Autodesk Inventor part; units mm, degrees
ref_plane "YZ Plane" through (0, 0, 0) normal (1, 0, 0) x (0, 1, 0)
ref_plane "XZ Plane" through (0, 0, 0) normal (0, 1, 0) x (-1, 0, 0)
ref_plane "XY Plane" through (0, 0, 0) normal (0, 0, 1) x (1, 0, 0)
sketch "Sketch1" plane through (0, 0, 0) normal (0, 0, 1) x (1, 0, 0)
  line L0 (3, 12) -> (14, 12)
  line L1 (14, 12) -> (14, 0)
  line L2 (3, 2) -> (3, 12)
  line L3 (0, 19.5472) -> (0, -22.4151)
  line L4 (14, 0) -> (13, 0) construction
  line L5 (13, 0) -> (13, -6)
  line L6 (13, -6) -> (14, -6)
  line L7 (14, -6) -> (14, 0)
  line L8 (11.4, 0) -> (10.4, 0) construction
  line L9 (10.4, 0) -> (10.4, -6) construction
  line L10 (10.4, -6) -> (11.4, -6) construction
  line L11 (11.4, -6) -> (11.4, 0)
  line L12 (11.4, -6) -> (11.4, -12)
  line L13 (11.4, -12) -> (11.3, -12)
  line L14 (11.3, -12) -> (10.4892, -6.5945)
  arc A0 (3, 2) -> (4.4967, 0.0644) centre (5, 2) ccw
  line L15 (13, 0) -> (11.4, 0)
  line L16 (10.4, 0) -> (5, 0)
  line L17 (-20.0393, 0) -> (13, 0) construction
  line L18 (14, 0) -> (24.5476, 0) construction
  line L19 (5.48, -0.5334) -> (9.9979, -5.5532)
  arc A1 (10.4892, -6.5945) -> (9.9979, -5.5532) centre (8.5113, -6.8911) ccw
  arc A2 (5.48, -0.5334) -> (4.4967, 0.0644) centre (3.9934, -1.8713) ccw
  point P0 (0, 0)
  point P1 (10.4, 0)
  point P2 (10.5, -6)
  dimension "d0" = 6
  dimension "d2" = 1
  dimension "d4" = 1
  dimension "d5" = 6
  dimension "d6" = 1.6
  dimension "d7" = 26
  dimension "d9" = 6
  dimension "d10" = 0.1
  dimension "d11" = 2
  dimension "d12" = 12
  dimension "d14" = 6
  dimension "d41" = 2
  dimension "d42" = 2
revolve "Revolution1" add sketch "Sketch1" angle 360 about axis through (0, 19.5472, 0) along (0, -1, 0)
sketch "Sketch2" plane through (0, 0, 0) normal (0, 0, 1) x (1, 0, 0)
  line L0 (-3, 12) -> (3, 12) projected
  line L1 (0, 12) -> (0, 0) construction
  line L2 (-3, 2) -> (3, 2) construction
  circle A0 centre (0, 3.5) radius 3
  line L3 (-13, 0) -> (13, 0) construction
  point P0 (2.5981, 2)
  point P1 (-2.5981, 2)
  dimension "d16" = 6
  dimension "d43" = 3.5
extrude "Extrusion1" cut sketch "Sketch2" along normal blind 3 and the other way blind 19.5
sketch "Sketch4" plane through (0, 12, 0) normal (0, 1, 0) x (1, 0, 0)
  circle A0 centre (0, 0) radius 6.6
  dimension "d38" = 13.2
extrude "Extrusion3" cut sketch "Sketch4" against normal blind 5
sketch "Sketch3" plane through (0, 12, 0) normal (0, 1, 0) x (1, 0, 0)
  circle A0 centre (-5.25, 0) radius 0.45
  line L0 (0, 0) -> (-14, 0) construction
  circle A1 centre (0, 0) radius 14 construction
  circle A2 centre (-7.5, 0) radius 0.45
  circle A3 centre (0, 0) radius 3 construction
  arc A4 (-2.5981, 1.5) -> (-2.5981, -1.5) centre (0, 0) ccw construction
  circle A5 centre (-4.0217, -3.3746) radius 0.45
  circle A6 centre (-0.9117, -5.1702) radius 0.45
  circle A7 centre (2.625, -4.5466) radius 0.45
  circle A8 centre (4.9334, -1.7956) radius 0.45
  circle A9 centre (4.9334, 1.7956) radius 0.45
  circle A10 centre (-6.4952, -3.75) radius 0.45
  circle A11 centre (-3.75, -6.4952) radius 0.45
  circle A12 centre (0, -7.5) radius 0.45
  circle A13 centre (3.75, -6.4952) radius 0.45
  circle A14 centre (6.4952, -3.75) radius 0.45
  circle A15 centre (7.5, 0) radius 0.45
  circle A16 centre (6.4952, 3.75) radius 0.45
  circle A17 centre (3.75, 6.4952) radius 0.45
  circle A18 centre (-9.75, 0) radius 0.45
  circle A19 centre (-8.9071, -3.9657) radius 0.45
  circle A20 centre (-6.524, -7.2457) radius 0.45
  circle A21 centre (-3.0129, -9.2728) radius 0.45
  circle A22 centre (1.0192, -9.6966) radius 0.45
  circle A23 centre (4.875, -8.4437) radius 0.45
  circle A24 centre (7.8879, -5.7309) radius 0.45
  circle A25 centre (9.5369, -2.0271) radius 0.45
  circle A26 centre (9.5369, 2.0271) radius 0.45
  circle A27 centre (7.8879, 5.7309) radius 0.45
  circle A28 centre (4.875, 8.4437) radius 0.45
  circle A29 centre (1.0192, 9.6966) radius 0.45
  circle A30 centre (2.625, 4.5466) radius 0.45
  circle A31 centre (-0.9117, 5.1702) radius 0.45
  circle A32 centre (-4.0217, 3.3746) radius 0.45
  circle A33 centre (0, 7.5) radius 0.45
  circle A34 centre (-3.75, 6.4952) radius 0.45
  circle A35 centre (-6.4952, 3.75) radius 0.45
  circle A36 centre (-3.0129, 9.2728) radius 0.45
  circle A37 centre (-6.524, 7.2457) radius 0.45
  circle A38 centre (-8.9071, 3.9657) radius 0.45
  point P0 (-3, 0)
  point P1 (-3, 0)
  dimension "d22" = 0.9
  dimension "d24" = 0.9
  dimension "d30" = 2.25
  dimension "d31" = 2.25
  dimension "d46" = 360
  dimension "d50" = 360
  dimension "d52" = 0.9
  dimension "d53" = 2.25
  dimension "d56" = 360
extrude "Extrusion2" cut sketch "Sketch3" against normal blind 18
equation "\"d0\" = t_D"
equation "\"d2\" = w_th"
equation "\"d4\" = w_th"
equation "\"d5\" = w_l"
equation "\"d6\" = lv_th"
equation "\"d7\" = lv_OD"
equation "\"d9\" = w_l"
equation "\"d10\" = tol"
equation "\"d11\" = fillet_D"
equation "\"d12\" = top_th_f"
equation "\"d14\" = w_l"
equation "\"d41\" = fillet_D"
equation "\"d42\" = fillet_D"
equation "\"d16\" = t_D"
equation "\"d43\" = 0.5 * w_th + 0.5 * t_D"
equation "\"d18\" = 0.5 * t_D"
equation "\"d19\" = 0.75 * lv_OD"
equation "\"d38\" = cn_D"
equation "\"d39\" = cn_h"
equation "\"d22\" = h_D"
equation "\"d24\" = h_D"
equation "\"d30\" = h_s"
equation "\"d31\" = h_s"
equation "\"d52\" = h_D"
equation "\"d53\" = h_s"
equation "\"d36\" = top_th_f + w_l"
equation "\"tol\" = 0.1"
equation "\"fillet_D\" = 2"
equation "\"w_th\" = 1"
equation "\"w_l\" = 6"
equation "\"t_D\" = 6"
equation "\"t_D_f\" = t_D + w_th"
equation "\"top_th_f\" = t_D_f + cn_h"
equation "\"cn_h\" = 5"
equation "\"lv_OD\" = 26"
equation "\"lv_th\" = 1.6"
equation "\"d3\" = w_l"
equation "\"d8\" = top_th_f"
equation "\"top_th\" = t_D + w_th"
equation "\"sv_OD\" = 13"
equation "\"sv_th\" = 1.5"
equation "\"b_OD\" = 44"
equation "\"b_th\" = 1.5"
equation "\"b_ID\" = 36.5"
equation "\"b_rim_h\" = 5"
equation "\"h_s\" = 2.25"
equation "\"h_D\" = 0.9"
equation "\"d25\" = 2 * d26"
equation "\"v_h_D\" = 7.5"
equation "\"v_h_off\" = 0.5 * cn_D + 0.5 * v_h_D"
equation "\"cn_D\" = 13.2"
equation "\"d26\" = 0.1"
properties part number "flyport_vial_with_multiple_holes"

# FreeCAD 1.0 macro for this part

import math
import FreeCAD as App
import Part
import Sketcher
Q = App.Units.Quantity

doc = App.newDocument("Part")
body = doc.addObject("PartDesign::Body", "Body")

sketch1 = body.newObject("Sketcher::SketchObject", "Sketch")
sketch1.AttachmentSupport = (doc.getObject("XY_Plane"), [""])
sketch1.MapMode = "FlatFace"
sketch1.addGeometry([
    Part.LineSegment(App.Vector(14, 12, 0), App.Vector(3, 12, 0)),
    Part.LineSegment(App.Vector(3, 12, 0), App.Vector(3, 2, 0)),
    Part.ArcOfCircle(Part.Circle(App.Vector(5, 2, 0), App.Vector(0, 0, 1), 2), math.radians(180), math.radians(255)),
    Part.ArcOfCircle(Part.Circle(App.Vector(3.99, -1.87, 0), App.Vector(0, 0, 1), 2), math.radians(42), math.radians(75)),
    Part.LineSegment(App.Vector(5.48, -0.53, 0), App.Vector(10, -5.55, 0)),
    Part.ArcOfCircle(Part.Circle(App.Vector(8.51, -6.89, 0), App.Vector(0, 0, 1), 2), math.radians(9), math.radians(42)),
    Part.LineSegment(App.Vector(10.49, -6.59, 0), App.Vector(11.3, -12, 0)),
    Part.LineSegment(App.Vector(11.3, -12, 0), App.Vector(11.4, -12, 0)),
    Part.LineSegment(App.Vector(11.4, -12, 0), App.Vector(11.4, 0, 0)),
    Part.LineSegment(App.Vector(11.4, 0, 0), App.Vector(13, 0, 0)),
    Part.LineSegment(App.Vector(13, 0, 0), App.Vector(13, -6, 0)),
    Part.LineSegment(App.Vector(13, -6, 0), App.Vector(14, -6, 0)),
    Part.LineSegment(App.Vector(14, -6, 0), App.Vector(14, 12, 0)),
], False)
sketch1.addConstraint([
    Sketcher.Constraint("Coincident", 0, 2, 1, 1),
    Sketcher.Constraint("Tangent", 1, 2, 2, 1),
    Sketcher.Constraint("Tangent", 2, 2, 3, 2),
    Sketcher.Constraint("Tangent", 3, 1, 4, 1),
    Sketcher.Constraint("Tangent", 4, 2, 5, 2),
    Sketcher.Constraint("Tangent", 5, 1, 6, 1),
    Sketcher.Constraint("Coincident", 6, 2, 7, 1),
    Sketcher.Constraint("Coincident", 7, 2, 8, 1),
    Sketcher.Constraint("Coincident", 8, 2, 9, 1),
    Sketcher.Constraint("Coincident", 9, 2, 10, 1),
    Sketcher.Constraint("Coincident", 10, 2, 11, 1),
    Sketcher.Constraint("Coincident", 11, 2, 12, 1),
    Sketcher.Constraint("Coincident", 12, 2, 0, 1),
    Sketcher.Constraint("Horizontal", 0),
    Sketcher.Constraint("Vertical", 1),
    Sketcher.Constraint("Horizontal", 7),
    Sketcher.Constraint("Vertical", 8),
    Sketcher.Constraint("Horizontal", 9),
    Sketcher.Constraint("Vertical", 10),
    Sketcher.Constraint("Horizontal", 11),
    Sketcher.Constraint("Vertical", 12),
    Sketcher.Constraint("Equal", 2, 3),
    Sketcher.Constraint("Equal", 3, 5),
    Sketcher.Constraint("PointOnObject", 8, 2, -1),
    Sketcher.Constraint("Radius", 2, 2.0),
    Sketcher.Constraint("DistanceX", 11, 1, 11, 2, 1.0),
    Sketcher.Constraint("DistanceY", 8, 1, 8, 2, 12.0),
    Sketcher.Constraint("DistanceY", 10, 2, 10, 1, 6.0),
    Sketcher.Constraint("DistanceX", 7, 1, 7, 2, 0.1),
    Sketcher.Constraint("DistanceX", 9, 1, 9, 2, 1.6),
    Sketcher.Constraint("DistanceY", -1, 1, 2, 3, 2.0),
    Sketcher.Constraint("DistanceY", -1, 1, 0, 2, 12.0),
    Sketcher.Constraint("DistanceX", 0, 2, 0, 1, 11.0),
    Sketcher.Constraint("DistanceX", -1, 1, 2, 3, 5.0),
    Sketcher.Constraint("Angle", 6, Q("-81.4695 deg")),
    Sketcher.Constraint("DistanceX", -1, 1, 3, 1, 5.48),
    Sketcher.Constraint("Distance", 6, 5.466),
])
revolution = body.newObject("PartDesign::Revolution", "Revolution")
revolution.Profile = sketch1
revolution.ReferenceAxis = (sketch1, ["V_Axis"])
revolution.Angle = 360

sketch2 = body.newObject("Sketcher::SketchObject", "Sketch001")
sketch2.AttachmentSupport = (doc.getObject("XY_Plane"), [""])
sketch2.MapMode = "FlatFace"
sketch2.addGeometry(Part.Circle(App.Vector(0, 3.5, 0), App.Vector(0, 0, 1), 3), False)
sketch2.addConstraint([
    Sketcher.Constraint("PointOnObject", 0, 3, -2),
    Sketcher.Constraint("Diameter", 0, 6.0),
    Sketcher.Constraint("DistanceY", -1, 1, 0, 3, 3.5),
])
pocket1 = body.newObject("PartDesign::Pocket", "Pocket")
pocket1.Profile = sketch2
pocket1.Type = "TwoLengths"
pocket1.Length = 3
pocket1.Length2 = 19.5
pocket1.Reversed = True

sketch3 = body.newObject("Sketcher::SketchObject", "Sketch002")
sketch3.AttachmentSupport = (doc.getObject("XZ_Plane"), [""])
sketch3.MapMode = "FlatFace"
sketch3.AttachmentOffset = App.Placement(App.Vector(0, 0, -12), App.Rotation())
sketch3.addGeometry(Part.Circle(App.Vector(0, 0, 0), App.Vector(0, 0, 1), 7), False)
sketch3.addConstraint([
    Sketcher.Constraint("Coincident", 0, 3, -1, 1),
    Sketcher.Constraint("Diameter", 0, 13.2),
])
pocket2 = body.newObject("PartDesign::Pocket", "Pocket001")
pocket2.Profile = sketch3
pocket2.Length = 5
pocket2.Reversed = True

sketch4 = body.newObject("Sketcher::SketchObject", "Sketch003")
sketch4.AttachmentSupport = (doc.getObject("XZ_Plane"), [""])
sketch4.MapMode = "FlatFace"
sketch4.AttachmentOffset = App.Placement(App.Vector(0, 0, -12), App.Rotation())
sketch4.addGeometry([
    Part.Circle(App.Vector(-5.25, 0, 0), App.Vector(0, 0, 1), 0.45),
    Part.Circle(App.Vector(-7.5, 0, 0), App.Vector(0, 0, 1), 0.45),
    Part.Circle(App.Vector(-4.02, 3.37, 0), App.Vector(0, 0, 1), 0.45),
    Part.Circle(App.Vector(-0.91, 5.17, 0), App.Vector(0, 0, 1), 0.45),
    Part.Circle(App.Vector(2.62, 4.55, 0), App.Vector(0, 0, 1), 0.45),
    Part.Circle(App.Vector(4.93, 1.8, 0), App.Vector(0, 0, 1), 0.45),
    Part.Circle(App.Vector(4.93, -1.8, 0), App.Vector(0, 0, 1), 0.45),
    Part.Circle(App.Vector(-6.5, 3.75, 0), App.Vector(0, 0, 1), 0.45),
    Part.Circle(App.Vector(-3.75, 6.5, 0), App.Vector(0, 0, 1), 0.45),
    Part.Circle(App.Vector(0, 7.5, 0), App.Vector(0, 0, 1), 0.45),
    Part.Circle(App.Vector(3.75, 6.5, 0), App.Vector(0, 0, 1), 0.45),
    Part.Circle(App.Vector(6.5, 3.75, 0), App.Vector(0, 0, 1), 0.45),
    Part.Circle(App.Vector(7.5, 0, 0), App.Vector(0, 0, 1), 0.45),
    Part.Circle(App.Vector(6.5, -3.75, 0), App.Vector(0, 0, 1), 0.45),
    Part.Circle(App.Vector(3.75, -6.5, 0), App.Vector(0, 0, 1), 0.45),
    Part.Circle(App.Vector(-9.75, 0, 0), App.Vector(0, 0, 1), 0.45),
    Part.Circle(App.Vector(-8.91, 3.97, 0), App.Vector(0, 0, 1), 0.45),
    Part.Circle(App.Vector(-6.52, 7.25, 0), App.Vector(0, 0, 1), 0.45),
    Part.Circle(App.Vector(-3.01, 9.27, 0), App.Vector(0, 0, 1), 0.45),
    Part.Circle(App.Vector(1.02, 9.7, 0), App.Vector(0, 0, 1), 0.45),
    Part.Circle(App.Vector(4.88, 8.44, 0), App.Vector(0, 0, 1), 0.45),
    Part.Circle(App.Vector(7.89, 5.73, 0), App.Vector(0, 0, 1), 0.45),
    Part.Circle(App.Vector(9.54, 2.03, 0), App.Vector(0, 0, 1), 0.45),
    Part.Circle(App.Vector(9.54, -2.03, 0), App.Vector(0, 0, 1), 0.45),
    Part.Circle(App.Vector(7.89, -5.73, 0), App.Vector(0, 0, 1), 0.45),
    Part.Circle(App.Vector(4.88, -8.44, 0), App.Vector(0, 0, 1), 0.45),
    Part.Circle(App.Vector(1.02, -9.7, 0), App.Vector(0, 0, 1), 0.45),
    Part.Circle(App.Vector(2.62, -4.55, 0), App.Vector(0, 0, 1), 0.45),
    Part.Circle(App.Vector(-0.91, -5.17, 0), App.Vector(0, 0, 1), 0.45),
    Part.Circle(App.Vector(-4.02, -3.37, 0), App.Vector(0, 0, 1), 0.45),
    Part.Circle(App.Vector(0, -7.5, 0), App.Vector(0, 0, 1), 0.45),
    Part.Circle(App.Vector(-3.75, -6.5, 0), App.Vector(0, 0, 1), 0.45),
    Part.Circle(App.Vector(-6.5, -3.75, 0), App.Vector(0, 0, 1), 0.45),
    Part.Circle(App.Vector(-3.01, -9.27, 0), App.Vector(0, 0, 1), 0.45),
    Part.Circle(App.Vector(-6.52, -7.25, 0), App.Vector(0, 0, 1), 0.45),
    Part.Circle(App.Vector(-8.91, -3.97, 0), App.Vector(0, 0, 1), 0.45),
], False)
sketch4.addConstraint([
    Sketcher.Constraint("Equal", 0, 1),
    Sketcher.Constraint("Equal", 1, 2),
    Sketcher.Constraint("Equal", 2, 3),
    Sketcher.Constraint("Equal", 3, 4),
    Sketcher.Constraint("Equal", 4, 5),
    Sketcher.Constraint("Equal", 5, 6),
    Sketcher.Constraint("Equal", 6, 7),
    Sketcher.Constraint("Equal", 7, 8),
    Sketcher.Constraint("Equal", 8, 9),
    Sketcher.Constraint("Equal", 9, 10),
    Sketcher.Constraint("Equal", 10, 11),
    Sketcher.Constraint("Equal", 11, 12),
    Sketcher.Constraint("Equal", 12, 13),
    Sketcher.Constraint("Equal", 13, 14),
    Sketcher.Constraint("Equal", 14, 15),
    Sketcher.Constraint("Equal", 15, 16),
    Sketcher.Constraint("Equal", 16, 17),
    Sketcher.Constraint("Equal", 17, 18),
    Sketcher.Constraint("Equal", 18, 19),
    Sketcher.Constraint("Equal", 19, 20),
    Sketcher.Constraint("Equal", 20, 21),
    Sketcher.Constraint("Equal", 21, 22),
    Sketcher.Constraint("Equal", 22, 23),
    Sketcher.Constraint("Equal", 23, 24),
    Sketcher.Constraint("Equal", 24, 25),
    Sketcher.Constraint("Equal", 25, 26),
    Sketcher.Constraint("Equal", 26, 27),
    Sketcher.Constraint("Equal", 27, 28),
    Sketcher.Constraint("Equal", 28, 29),
    Sketcher.Constraint("Equal", 29, 30),
    Sketcher.Constraint("Equal", 30, 31),
    Sketcher.Constraint("Equal", 31, 32),
    Sketcher.Constraint("Equal", 32, 33),
    Sketcher.Constraint("Equal", 33, 34),
    Sketcher.Constraint("Equal", 34, 35),
    Sketcher.Constraint("Symmetric", 1, 3, 12, 3, -1, 1),
    Sketcher.Constraint("Symmetric", 7, 3, 13, 3, -1, 1),
    Sketcher.Constraint("Symmetric", 8, 3, 14, 3, -1, 1),
    Sketcher.Constraint("Symmetric", 9, 3, 30, 3, -1, 1),
    Sketcher.Constraint("Symmetric", 10, 3, 31, 3, -1, 1),
    Sketcher.Constraint("Symmetric", 11, 3, 32, 3, -1, 1),
    Sketcher.Constraint("Symmetric", 8, 3, 10, 3, -2),
    Sketcher.Constraint("Symmetric", 7, 3, 11, 3, -2),
    Sketcher.Constraint("Symmetric", 5, 3, 6, 3, -1),
    Sketcher.Constraint("Symmetric", 22, 3, 23, 3, -1),
    Sketcher.Constraint("Symmetric", 21, 3, 24, 3, -1),
    Sketcher.Constraint("Symmetric", 20, 3, 25, 3, -1),
    Sketcher.Constraint("Symmetric", 19, 3, 26, 3, -1),
    Sketcher.Constraint("Symmetric", 4, 3, 27, 3, -1),
    Sketcher.Constraint("Symmetric", 3, 3, 28, 3, -1),
    Sketcher.Constraint("Symmetric", 2, 3, 29, 3, -1),
    Sketcher.Constraint("Symmetric", 18, 3, 33, 3, -1),
    Sketcher.Constraint("Symmetric", 17, 3, 34, 3, -1),
    Sketcher.Constraint("Symmetric", 16, 3, 35, 3, -1),
    Sketcher.Constraint("PointOnObject", 0, 3, -1),
    Sketcher.Constraint("PointOnObject", 1, 3, -1),
    Sketcher.Constraint("PointOnObject", 9, 3, -2),
    Sketcher.Constraint("PointOnObject", 15, 3, -1),
    Sketcher.Constraint("Diameter", 0, 0.9),
    Sketcher.Constraint("DistanceX", 1, 3, 0, 3, 2.25),
    Sketcher.Constraint("DistanceX", 15, 3, 1, 3, 2.25),
    Sketcher.Constraint("DistanceX", 4, 3, 20, 3, 2.25),
    Sketcher.Constraint("DistanceX", 15, 3, 8, 3, 6.0),
    Sketcher.Constraint("DistanceX", 1, 3, -1, 1, 7.5),
    Sketcher.Constraint("DistanceY", -1, 1, 9, 3, 7.5),
    Sketcher.Constraint("DistanceY", 13, 3, 11, 3, 7.5),
    Sketcher.Constraint("DistanceX", 2, 3, 3, 3, 3.11),
    Sketcher.Constraint("DistanceY", 16, 3, 17, 3, 3.28),
    Sketcher.Constraint("DistanceY", 4, 3, 19, 3, 5.15),
    Sketcher.Constraint("DistanceX", -1, 1, 4, 3, 2.625),
    Sketcher.Constraint("DistanceX", 16, 3, -1, 1, 8.907),
    Sketcher.Constraint("DistanceX", 17, 3, -1, 1, 6.524),
    Sketcher.Constraint("DistanceX", 18, 3, -1, 1, 3.013),
    Sketcher.Constraint("DistanceX", -1, 1, 21, 3, 7.888),
    Sketcher.Constraint("DistanceY", -1, 1, 21, 3, 5.731),
    Sketcher.Constraint("DistanceX", -1, 1, 22, 3, 9.537),
    Sketcher.Constraint("DistanceY", -1, 1, 22, 3, 2.027),
    Sketcher.Constraint("DistanceY", 2, 3, 4, 3, 1.172),
    Sketcher.Constraint("DistanceY", 5, 3, 4, 3, 2.751),
    Sketcher.Constraint("DistanceX", 3, 3, 5, 3, 5.845),
    Sketcher.Constraint("DistanceY", 3, 3, 8, 3, 1.325),
    Sketcher.Constraint("DistanceX", 16, 3, 7, 3, 2.412),
    Sketcher.Constraint("DistanceY", 2, 3, 16, 3, 0.591),
    Sketcher.Constraint("DistanceY", 17, 3, 18, 3, 2.027),
    Sketcher.Constraint("DistanceX", 18, 3, 19, 3, 4.032),
    Sketcher.Constraint("DistanceX", 3, 3, 19, 3, 1.931),
    Sketcher.Constraint("DistanceY", 20, 3, 19, 3, 1.253),
    Sketcher.Constraint("DistanceY", -1, 1, 2, 3, 3.3746),
    Sketcher.Constraint("DistanceY", -1, 1, 3, 3, 5.1702),
])
pocket3 = body.newObject("PartDesign::Pocket", "Pocket002")
pocket3.Profile = sketch4
pocket3.Length = 18
pocket3.Reversed = True

doc.recompute()
